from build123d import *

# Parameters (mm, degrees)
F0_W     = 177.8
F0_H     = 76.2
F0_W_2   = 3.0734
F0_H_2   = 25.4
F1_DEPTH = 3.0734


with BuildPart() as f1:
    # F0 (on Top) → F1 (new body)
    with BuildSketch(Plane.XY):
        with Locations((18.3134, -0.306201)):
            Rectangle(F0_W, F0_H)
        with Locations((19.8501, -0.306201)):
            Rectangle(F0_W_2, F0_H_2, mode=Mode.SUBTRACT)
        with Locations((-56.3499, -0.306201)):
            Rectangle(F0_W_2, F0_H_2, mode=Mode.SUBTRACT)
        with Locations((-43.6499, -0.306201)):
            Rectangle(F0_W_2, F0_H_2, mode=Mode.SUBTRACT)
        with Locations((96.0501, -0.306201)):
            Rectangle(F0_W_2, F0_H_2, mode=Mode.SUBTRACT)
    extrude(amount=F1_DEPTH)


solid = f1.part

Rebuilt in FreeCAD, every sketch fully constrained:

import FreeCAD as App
import Part
import Sketcher
Q = App.Units.Quantity


def add_polygon(sketch, points):
    """Adds a closed chain of lines whose ends are joined by coincident constraints."""
    first, n = sketch.GeometryCount, len(points)
    for a, b in zip(points, points[1:] + points[:1]):
        sketch.addGeometry(Part.LineSegment(App.Vector(*a, 0), App.Vector(*b, 0)), False)
    for i in range(n):
        sketch.addConstraint(Sketcher.Constraint("Coincident", first + i, 2, first + (i + 1) % n, 1))

doc = App.newDocument("Part")
body = doc.addObject("PartDesign::Body", "Body")

sketch1 = body.newObject("Sketcher::SketchObject", "Sketch")
sketch1.AttachmentSupport = (doc.getObject("XY_Plane"), [""])
sketch1.MapMode = "FlatFace"
add_polygon(sketch1, [(-70.6, 37.8), (-70.6, -38.4), (107.2, -38.4), (107.2, 37.8)])
add_polygon(sketch1, [(-54.8, -13), (-57.9, -13), (-57.9, 12.4), (-54.8, 12.4)])
add_polygon(sketch1, [(-42.1, -13), (-45.2, -13), (-45.2, 12.4), (-42.1, 12.4)])
add_polygon(sketch1, [(21.4, -13), (18.3, -13), (18.3, 12.4), (21.4, 12.4)])
add_polygon(sketch1, [(97.6, -13), (94.5, -13), (94.5, 12.4), (97.6, 12.4)])
sketch1.addConstraint([
    Sketcher.Constraint("Vertical", 0),
    Sketcher.Constraint("Horizontal", 1),
    Sketcher.Constraint("Vertical", 2),
    Sketcher.Constraint("Horizontal", 3),
    Sketcher.Constraint("Horizontal", 4),
    Sketcher.Constraint("Vertical", 5),
    Sketcher.Constraint("Horizontal", 6),
    Sketcher.Constraint("Vertical", 7),
    Sketcher.Constraint("Horizontal", 8),
    Sketcher.Constraint("Vertical", 9),
    Sketcher.Constraint("Horizontal", 10),
    Sketcher.Constraint("Vertical", 11),
    Sketcher.Constraint("Horizontal", 12),
    Sketcher.Constraint("Vertical", 13),
    Sketcher.Constraint("Horizontal", 14),
    Sketcher.Constraint("Vertical", 15),
    Sketcher.Constraint("Horizontal", 16),
    Sketcher.Constraint("Vertical", 17),
    Sketcher.Constraint("Horizontal", 18),
    Sketcher.Constraint("Vertical", 19),
    Sketcher.Constraint("Horizontal", 7, 2, 8, 2),
    Sketcher.Constraint("Horizontal", 6, 2, 9, 2),
    Sketcher.Constraint("Horizontal", 11, 2, 12, 2),
    Sketcher.Constraint("Horizontal", 10, 2, 13, 2),
    Sketcher.Constraint("Horizontal", 15, 2, 16, 2),
    Sketcher.Constraint("Horizontal", 14, 2, 17, 2),
    Sketcher.Constraint("Equal", 6, 8),
    Sketcher.Constraint("Equal", 10, 12),
    Sketcher.Constraint("Equal", 14, 16),
    Sketcher.Constraint("DistanceX", 1, 1, 1, 2, Q("7 in")),
    Sketcher.Constraint("DistanceY", 0, 2, 0, 1, Q("3 in")),
    Sketcher.Constraint("DistanceY", 5, 1, 5, 2, Q("1 in")),
    Sketcher.Constraint("DistanceY", 0, 2, 4, 2, Q("1 in")),
    Sketcher.Constraint("DistanceX", 0, 2, 8, 2, Q("1 in")),
    Sketcher.Constraint("DistanceX", 12, 2, 16, 2, Q("3 in")),
    Sketcher.Constraint("DistanceX", 0, 2, 4, 2, Q("0.5 in")),
    Sketcher.Constraint("DistanceX", 8, 2, 12, 2, Q("2.5 in")),
    Sketcher.Constraint("DistanceX", 4, 2, 4, 1, Q("0.121 in")),
    Sketcher.Constraint("DistanceX", 0, 2, -1, 1, Q("2.779 in")),
    Sketcher.Constraint("DistanceY", 0, 2, -1, 1, 38.406201),
])
pad1 = body.newObject("PartDesign::Pad", "Pad")
pad1.Profile = sketch1
pad1.Length = Q("0.121 in")

doc.recompute()
